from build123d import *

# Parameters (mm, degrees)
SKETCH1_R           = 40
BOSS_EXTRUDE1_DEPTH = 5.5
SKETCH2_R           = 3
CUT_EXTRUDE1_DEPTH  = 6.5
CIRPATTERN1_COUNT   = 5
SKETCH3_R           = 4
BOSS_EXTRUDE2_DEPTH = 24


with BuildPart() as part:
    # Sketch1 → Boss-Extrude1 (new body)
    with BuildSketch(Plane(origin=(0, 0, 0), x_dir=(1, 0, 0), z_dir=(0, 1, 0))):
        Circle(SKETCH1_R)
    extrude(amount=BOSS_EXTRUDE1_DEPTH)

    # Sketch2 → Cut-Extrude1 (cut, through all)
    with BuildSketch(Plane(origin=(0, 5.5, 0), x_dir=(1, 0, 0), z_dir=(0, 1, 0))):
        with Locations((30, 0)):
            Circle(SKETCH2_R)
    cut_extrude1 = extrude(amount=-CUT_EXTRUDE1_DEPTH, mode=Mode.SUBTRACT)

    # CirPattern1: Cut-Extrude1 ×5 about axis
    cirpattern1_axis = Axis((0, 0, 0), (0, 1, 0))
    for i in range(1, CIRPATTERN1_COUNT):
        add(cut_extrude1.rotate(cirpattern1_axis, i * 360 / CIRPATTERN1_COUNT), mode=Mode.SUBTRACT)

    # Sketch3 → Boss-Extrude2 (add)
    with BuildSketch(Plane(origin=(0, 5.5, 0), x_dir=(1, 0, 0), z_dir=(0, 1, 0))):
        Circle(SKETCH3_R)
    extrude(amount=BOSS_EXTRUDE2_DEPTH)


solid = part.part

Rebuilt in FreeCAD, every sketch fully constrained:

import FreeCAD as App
import Part
import Sketcher
from FreeCAD import Vector
Q = App.Units.Quantity

doc = App.newDocument("Part")
params = doc.addObject("Spreadsheet::Sheet", "Params")
for row, (alias, value) in enumerate([
    ("sketch1_diameter", "80 mm"),
    ("pad1_length", "5.5 mm"),
    ("sketch2_diameter", "6 mm"),
    ("sketch3_diameter", "8 mm"),
    ("pad2_length", "24 mm"),
], start=1):
    params.set(f"A{row}", alias)
    params.set(f"B{row}", "=" + value)
    params.setAlias(f"B{row}", alias)

body = doc.addObject("PartDesign::Body", "Body")

sketch1 = doc.addObject("Sketcher::SketchObject", "Sketch")
body.addObject(sketch1)
sketch1.AttachmentSupport = (doc.XZ_Plane, [""])
sketch1.MapMode = "FlatFace"
sketch1.addGeometry(Part.Circle(Vector(0, 0, 0), Vector(0, 0, 1), 40), False)
sketch1.addConstraint(Sketcher.Constraint("Coincident", 0, 3, -1, 1))
sketch1.addConstraint(Sketcher.Constraint("Diameter", 0, Q("80 mm")))
sketch1.setExpression("Constraints[1]", "Params.sketch1_diameter")
pad1 = doc.addObject("PartDesign::Pad", "Pad")
body.addObject(pad1)
pad1.Profile = sketch1
pad1.setExpression("Length", "Params.pad1_length")
pad1.Reversed = True

sketch2 = doc.addObject("Sketcher::SketchObject", "Sketch001")
body.addObject(sketch2)
sketch2.AttachmentSupport = (doc.XZ_Plane, [""])
sketch2.MapMode = "FlatFace"
sketch2.AttachmentOffset = App.Placement(Vector(0, 0, -5.5), App.Rotation())
sketch2.addGeometry(Part.Circle(Vector(30, 0, 0), Vector(0, 0, 1), 3), False)
sketch2.addConstraint(Sketcher.Constraint("PointOnObject", 0, 3, -1))
sketch2.addConstraint(Sketcher.Constraint("Diameter", 0, Q("6 mm")))
sketch2.addConstraint(Sketcher.Constraint("DistanceX", -1, 1, 0, 3, Q("30 mm")))
sketch2.setExpression("Constraints[1]", "Params.sketch2_diameter")
pocket1 = doc.addObject("PartDesign::Pocket", "Pocket")
body.addObject(pocket1)
pocket1.Profile = sketch2
pocket1.Type = "ThroughAll"
pocket1.Reversed = True
doc.recompute()

polarpattern = doc.addObject("PartDesign::PolarPattern", "PolarPattern")
body.addObject(polarpattern)
polarpattern.Originals = [pocket1]
polarpattern.Axis = (doc.Y_Axis, [""])
polarpattern.Angle = 360
polarpattern.Occurrences = 5
body.Tip = polarpattern

sketch3 = doc.addObject("Sketcher::SketchObject", "Sketch002")
body.addObject(sketch3)
sketch3.AttachmentSupport = (doc.XZ_Plane, [""])
sketch3.MapMode = "FlatFace"
sketch3.AttachmentOffset = App.Placement(Vector(0, 0, -5.5), App.Rotation())
sketch3.addGeometry(Part.Circle(Vector(0, 0, 0), Vector(0, 0, 1), 4), False)
sketch3.addConstraint(Sketcher.Constraint("Coincident", 0, 3, -1, 1))
sketch3.addConstraint(Sketcher.Constraint("Diameter", 0, Q("8 mm")))
sketch3.setExpression("Constraints[1]", "Params.sketch3_diameter")
pad2 = doc.addObject("PartDesign::Pad", "Pad001")
body.addObject(pad2)
pad2.Profile = sketch3
pad2.setExpression("Length", "Params.pad2_length")
pad2.Reversed = True

doc.recompute()
